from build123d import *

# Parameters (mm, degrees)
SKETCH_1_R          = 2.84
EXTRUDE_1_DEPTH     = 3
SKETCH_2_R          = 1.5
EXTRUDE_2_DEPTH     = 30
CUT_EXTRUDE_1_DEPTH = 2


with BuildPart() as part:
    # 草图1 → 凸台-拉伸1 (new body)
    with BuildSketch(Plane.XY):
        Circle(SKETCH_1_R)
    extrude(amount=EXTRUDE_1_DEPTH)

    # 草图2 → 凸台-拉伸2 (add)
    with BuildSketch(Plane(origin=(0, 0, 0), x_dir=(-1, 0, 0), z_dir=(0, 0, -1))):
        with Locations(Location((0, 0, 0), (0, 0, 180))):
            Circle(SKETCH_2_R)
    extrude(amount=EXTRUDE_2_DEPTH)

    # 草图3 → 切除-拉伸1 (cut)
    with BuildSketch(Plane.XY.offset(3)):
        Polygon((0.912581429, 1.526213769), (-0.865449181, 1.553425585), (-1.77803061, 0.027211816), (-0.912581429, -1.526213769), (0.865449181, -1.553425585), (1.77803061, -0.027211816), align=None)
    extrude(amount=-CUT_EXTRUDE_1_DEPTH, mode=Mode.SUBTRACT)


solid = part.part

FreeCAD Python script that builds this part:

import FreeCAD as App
import Part
import Sketcher

V = App.Vector


def add_polygon(sketch, points):
    """Adds a closed chain of lines whose ends are joined by coincident constraints."""
    first, n = sketch.GeometryCount, len(points)
    for a, b in zip(points, points[1:] + points[:1]):
        sketch.addGeometry(Part.LineSegment(App.Vector(*a, 0), App.Vector(*b, 0)), False)
    for i in range(n):
        sketch.addConstraint(Sketcher.Constraint("Coincident", first + i, 2, first + (i + 1) % n, 1))

doc = App.newDocument("Part")
body = doc.addObject("PartDesign::Body", "Body")

# Sketch on XY plane
sketch1 = body.newObject("Sketcher::SketchObject", "Sketch")
sketch1.AttachmentSupport = (doc.getObject("XY_Plane"), [""])
sketch1.MapMode = "FlatFace"
sketch1.addGeometry(Part.Circle(V(0, 0, 0), V(0, 0, 1), 2.8), False)
sketch1.addConstraint(Sketcher.Constraint("Coincident", 0, 3, -1, 1))
sketch1.addConstraint(Sketcher.Constraint("Diameter", 0, 5.68))
pad1 = body.newObject("PartDesign::Pad", "Pad")
pad1.Profile = sketch1
pad1.Length = 3

# Sketch on XY plane
sketch2 = body.newObject("Sketcher::SketchObject", "Sketch001")
sketch2.AttachmentSupport = (doc.getObject("XY_Plane"), [""])
sketch2.MapMode = "FlatFace"
sketch2.addGeometry(Part.Circle(V(0, 0, 0), V(0, 0, 1), 1.5), False)
sketch2.addConstraint(Sketcher.Constraint("Coincident", 0, 3, -1, 1))
sketch2.addConstraint(Sketcher.Constraint("Diameter", 0, 3.0))
pad2 = body.newObject("PartDesign::Pad", "Pad001")
pad2.Profile = sketch2
pad2.Length = 30
pad2.Reversed = True

# Sketch on XY plane
sketch3 = body.newObject("Sketcher::SketchObject", "Sketch002")
sketch3.AttachmentSupport = (doc.getObject("XY_Plane"), [""])
sketch3.MapMode = "FlatFace"
sketch3.AttachmentOffset = App.Placement(V(0, 0, 3), App.Rotation())
add_polygon(sketch3, [(0.9, 1.5), (-0.9, 1.6), (-1.8, 0), (-0.9, -1.5), (0.9, -1.6), (1.8, 0)])  # lines 0-5
sketch3.addConstraint(Sketcher.Constraint("Symmetric", 0, 2, 3, 2, -1, 1))
sketch3.addConstraint(Sketcher.Constraint("Symmetric", 1, 2, 4, 2, -1, 1))
sketch3.addConstraint(Sketcher.Constraint("Symmetric", 2, 2, 5, 2, -1, 1))
sketch3.addConstraint(Sketcher.Constraint("Equal", 0, 1))
sketch3.addConstraint(Sketcher.Constraint("Equal", 1, 2))
sketch3.addConstraint(Sketcher.Constraint("DistanceY", 2, 2, 4, 2, 1.499002))
sketch3.addConstraint(Sketcher.Constraint("DistanceX", 0, 2, 3, 2, 1.730898))
sketch3.addConstraint(Sketcher.Constraint("Distance", 0, 1.778239))
sketch3.addConstraint(Sketcher.Constraint("DistanceX", 1, 2, -1, 1, 1.778031))
pocket1 = body.newObject("PartDesign::Pocket", "Pocket")
pocket1.Profile = sketch3
pocket1.Length = 2

doc.recompute()
